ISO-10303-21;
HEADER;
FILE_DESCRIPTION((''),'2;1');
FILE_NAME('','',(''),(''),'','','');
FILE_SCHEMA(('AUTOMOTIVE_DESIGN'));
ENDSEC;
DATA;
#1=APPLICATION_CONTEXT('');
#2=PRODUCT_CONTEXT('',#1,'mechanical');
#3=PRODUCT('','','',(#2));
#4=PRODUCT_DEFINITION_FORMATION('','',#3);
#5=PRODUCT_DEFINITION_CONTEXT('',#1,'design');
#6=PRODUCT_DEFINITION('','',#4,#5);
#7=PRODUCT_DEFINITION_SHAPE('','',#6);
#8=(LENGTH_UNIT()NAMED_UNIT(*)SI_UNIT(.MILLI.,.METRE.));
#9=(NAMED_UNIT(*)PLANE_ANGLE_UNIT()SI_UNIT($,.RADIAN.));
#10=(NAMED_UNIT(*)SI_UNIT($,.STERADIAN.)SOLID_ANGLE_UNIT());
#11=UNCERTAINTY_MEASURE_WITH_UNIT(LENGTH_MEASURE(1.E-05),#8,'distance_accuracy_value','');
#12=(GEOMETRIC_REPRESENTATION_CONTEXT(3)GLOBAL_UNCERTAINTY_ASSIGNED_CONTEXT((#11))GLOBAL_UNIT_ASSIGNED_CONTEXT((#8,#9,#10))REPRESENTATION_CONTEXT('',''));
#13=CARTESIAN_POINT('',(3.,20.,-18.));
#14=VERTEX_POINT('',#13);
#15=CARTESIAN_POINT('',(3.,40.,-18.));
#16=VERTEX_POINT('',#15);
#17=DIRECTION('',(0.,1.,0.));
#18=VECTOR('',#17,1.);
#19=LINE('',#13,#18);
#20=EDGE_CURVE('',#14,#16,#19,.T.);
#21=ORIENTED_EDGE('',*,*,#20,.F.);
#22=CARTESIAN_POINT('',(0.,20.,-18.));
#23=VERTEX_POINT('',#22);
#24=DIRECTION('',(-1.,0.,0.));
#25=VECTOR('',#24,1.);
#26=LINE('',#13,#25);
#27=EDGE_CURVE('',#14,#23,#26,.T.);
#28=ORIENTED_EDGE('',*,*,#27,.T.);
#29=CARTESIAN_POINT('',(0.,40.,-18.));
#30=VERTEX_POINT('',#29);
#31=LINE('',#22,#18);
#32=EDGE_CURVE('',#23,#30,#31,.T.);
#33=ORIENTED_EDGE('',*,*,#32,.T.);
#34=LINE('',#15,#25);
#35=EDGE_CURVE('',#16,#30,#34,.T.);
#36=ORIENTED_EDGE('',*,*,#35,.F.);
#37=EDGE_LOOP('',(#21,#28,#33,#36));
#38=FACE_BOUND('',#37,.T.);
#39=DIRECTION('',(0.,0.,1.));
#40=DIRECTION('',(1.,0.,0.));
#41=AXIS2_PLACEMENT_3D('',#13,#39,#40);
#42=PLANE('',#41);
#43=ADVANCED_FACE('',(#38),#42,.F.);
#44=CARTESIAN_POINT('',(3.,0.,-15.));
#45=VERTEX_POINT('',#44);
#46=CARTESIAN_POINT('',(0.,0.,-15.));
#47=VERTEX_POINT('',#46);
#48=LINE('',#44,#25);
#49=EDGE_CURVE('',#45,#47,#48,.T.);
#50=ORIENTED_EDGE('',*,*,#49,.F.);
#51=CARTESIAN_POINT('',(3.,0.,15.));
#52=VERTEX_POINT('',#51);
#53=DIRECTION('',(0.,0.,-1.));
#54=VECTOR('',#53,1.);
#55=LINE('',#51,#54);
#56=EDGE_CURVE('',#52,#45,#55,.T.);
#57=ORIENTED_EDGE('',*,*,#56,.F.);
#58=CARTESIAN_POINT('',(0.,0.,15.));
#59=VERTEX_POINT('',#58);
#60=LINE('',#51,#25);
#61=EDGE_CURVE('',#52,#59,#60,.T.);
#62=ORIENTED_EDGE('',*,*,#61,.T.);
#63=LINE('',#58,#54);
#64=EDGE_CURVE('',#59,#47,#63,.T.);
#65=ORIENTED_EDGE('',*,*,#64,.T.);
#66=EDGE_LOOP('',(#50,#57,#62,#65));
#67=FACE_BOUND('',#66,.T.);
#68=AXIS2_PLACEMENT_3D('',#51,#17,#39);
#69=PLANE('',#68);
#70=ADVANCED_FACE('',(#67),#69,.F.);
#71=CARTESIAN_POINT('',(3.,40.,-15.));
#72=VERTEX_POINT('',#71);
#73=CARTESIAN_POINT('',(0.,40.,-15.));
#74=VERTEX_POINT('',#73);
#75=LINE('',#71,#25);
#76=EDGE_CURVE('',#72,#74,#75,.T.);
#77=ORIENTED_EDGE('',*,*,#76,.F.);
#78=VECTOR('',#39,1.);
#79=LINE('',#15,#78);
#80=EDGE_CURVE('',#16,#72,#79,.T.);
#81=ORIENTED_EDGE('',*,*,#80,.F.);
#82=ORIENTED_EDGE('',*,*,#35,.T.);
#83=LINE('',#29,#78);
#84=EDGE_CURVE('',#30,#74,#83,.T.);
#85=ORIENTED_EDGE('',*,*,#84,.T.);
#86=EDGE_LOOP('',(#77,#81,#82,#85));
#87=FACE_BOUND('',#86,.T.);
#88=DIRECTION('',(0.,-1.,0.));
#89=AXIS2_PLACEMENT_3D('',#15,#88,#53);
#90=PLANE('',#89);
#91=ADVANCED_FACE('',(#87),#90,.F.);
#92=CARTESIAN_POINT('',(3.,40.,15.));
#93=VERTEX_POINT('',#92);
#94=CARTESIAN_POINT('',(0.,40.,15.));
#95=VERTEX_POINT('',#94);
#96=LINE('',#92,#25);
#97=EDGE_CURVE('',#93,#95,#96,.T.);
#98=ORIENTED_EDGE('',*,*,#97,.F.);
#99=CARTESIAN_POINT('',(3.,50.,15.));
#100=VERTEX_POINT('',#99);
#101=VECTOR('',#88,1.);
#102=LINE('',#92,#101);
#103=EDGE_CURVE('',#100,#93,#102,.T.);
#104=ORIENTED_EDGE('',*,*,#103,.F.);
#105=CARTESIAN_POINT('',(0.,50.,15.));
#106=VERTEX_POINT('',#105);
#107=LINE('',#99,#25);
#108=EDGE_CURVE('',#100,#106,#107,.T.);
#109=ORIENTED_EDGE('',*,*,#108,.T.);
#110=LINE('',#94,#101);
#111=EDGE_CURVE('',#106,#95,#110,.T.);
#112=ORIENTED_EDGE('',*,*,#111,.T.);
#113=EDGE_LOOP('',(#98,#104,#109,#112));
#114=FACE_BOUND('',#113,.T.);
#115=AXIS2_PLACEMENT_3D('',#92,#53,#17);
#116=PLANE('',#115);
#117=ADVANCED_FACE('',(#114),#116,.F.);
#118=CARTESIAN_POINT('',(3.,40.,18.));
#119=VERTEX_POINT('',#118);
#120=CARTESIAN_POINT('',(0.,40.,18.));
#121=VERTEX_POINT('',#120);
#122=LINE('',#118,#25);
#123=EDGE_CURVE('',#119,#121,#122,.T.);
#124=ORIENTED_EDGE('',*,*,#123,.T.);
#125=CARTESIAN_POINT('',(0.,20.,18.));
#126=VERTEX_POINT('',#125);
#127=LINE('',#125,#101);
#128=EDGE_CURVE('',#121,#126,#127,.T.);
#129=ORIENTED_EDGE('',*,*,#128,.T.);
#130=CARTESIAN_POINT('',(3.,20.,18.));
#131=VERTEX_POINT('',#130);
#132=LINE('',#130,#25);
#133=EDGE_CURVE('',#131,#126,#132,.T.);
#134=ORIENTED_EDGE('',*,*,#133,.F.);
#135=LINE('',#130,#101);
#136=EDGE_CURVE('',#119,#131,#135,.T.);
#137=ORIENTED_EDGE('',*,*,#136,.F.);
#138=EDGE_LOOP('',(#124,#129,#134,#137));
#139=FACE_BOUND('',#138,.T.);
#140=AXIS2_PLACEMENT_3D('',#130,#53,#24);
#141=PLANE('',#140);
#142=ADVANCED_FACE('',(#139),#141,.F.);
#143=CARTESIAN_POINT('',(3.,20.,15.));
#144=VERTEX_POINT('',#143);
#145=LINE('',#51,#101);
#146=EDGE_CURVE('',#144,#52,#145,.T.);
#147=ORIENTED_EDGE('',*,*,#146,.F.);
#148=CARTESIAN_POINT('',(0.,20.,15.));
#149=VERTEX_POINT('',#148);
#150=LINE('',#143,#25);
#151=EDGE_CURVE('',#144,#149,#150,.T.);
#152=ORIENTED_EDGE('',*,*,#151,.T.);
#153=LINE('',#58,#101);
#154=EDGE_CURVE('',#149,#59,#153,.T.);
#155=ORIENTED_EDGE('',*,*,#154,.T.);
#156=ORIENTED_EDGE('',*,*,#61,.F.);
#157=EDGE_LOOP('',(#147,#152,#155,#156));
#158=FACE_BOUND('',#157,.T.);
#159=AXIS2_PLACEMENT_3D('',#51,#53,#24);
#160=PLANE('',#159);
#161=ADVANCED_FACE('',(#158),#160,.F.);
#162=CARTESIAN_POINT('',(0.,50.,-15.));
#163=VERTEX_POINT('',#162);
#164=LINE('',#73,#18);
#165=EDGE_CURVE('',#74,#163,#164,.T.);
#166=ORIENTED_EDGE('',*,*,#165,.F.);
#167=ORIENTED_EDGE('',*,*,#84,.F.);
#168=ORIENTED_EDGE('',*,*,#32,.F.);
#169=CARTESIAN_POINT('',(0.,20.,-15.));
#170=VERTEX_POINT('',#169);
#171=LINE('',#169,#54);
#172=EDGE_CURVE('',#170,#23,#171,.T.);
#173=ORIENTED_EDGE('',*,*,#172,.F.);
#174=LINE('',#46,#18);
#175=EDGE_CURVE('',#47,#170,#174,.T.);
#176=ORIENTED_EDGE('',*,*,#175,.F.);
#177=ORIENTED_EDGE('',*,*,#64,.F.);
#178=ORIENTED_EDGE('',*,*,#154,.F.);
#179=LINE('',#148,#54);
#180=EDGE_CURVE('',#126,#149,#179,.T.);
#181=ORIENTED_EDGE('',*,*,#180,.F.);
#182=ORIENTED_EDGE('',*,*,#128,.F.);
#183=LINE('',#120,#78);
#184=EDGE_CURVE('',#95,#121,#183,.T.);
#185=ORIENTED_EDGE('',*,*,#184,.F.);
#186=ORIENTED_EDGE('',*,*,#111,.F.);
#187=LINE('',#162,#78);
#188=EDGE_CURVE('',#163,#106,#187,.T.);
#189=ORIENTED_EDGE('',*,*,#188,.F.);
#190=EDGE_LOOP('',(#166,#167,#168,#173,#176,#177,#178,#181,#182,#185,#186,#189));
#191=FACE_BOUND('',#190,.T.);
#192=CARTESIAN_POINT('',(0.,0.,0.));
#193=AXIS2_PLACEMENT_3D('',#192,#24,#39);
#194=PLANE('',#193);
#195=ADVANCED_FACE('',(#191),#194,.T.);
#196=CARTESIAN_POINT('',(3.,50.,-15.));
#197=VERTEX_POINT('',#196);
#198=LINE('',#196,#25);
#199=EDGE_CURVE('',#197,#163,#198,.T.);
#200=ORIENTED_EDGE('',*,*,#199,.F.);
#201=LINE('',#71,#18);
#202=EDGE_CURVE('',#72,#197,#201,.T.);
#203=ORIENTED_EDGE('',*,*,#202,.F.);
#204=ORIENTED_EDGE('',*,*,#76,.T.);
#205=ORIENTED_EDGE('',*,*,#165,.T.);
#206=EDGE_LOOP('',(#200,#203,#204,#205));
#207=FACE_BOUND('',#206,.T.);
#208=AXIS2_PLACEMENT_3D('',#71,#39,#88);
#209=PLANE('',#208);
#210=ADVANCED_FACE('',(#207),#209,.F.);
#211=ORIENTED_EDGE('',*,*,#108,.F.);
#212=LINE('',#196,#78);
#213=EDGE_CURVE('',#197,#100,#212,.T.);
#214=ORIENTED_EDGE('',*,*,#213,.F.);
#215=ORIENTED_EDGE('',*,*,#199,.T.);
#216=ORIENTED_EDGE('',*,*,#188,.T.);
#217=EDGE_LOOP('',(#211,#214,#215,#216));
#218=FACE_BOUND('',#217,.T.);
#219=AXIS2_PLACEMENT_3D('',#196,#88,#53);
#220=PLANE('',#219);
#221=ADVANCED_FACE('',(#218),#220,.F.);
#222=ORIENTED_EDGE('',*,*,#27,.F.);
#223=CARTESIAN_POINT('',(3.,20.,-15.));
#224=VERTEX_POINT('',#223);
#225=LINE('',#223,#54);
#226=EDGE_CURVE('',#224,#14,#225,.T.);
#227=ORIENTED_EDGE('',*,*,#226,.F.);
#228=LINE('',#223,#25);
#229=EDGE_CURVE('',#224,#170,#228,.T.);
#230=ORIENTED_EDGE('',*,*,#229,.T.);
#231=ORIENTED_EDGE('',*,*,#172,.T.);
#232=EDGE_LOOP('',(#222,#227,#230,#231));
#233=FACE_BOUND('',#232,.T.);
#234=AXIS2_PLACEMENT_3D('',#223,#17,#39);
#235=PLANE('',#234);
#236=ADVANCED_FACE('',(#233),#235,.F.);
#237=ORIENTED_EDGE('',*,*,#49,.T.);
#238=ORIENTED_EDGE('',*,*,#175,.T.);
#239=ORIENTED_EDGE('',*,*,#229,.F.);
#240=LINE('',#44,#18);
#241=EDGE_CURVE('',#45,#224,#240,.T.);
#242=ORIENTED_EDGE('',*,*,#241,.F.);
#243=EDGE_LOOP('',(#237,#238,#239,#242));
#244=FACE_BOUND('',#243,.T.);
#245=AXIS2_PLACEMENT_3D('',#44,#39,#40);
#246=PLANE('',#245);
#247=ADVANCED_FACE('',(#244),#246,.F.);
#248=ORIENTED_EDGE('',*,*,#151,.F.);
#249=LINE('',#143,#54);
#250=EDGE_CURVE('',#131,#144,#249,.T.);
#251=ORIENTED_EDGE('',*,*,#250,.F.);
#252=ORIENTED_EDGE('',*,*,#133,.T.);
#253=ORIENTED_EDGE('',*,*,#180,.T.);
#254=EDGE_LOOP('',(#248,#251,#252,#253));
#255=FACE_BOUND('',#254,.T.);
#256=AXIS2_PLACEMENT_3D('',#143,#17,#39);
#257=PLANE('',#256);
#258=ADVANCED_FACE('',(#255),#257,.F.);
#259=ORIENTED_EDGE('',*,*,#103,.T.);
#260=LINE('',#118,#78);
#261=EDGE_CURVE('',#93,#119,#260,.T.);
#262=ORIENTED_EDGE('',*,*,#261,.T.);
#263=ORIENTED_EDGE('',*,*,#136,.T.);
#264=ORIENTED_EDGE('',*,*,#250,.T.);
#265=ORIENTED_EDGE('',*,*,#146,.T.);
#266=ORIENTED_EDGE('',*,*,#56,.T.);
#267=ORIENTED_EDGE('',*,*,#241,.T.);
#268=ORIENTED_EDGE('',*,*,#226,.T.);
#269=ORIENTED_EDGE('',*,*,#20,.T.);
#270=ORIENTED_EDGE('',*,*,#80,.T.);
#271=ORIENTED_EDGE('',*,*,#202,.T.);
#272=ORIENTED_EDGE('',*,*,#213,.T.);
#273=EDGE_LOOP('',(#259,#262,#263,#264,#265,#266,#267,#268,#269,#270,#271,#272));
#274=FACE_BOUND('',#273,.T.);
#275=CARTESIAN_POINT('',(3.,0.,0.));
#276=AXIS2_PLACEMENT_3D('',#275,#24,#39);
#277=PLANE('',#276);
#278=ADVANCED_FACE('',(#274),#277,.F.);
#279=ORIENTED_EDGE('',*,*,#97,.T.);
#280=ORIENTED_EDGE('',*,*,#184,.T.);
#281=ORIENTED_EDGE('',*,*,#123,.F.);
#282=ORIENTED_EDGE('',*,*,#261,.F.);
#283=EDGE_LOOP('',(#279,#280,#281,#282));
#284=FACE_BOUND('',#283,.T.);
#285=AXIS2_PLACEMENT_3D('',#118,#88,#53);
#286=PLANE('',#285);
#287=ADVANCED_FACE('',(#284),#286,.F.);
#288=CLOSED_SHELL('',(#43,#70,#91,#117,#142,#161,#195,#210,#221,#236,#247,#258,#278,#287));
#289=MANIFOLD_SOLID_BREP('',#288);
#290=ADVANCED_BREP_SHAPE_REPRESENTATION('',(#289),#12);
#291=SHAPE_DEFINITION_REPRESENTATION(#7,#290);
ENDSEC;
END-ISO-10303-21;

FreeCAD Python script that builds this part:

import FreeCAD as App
import Part
import Sketcher

V = App.Vector


def add_polygon(sketch, points):
    """Adds a closed chain of lines whose ends are joined by coincident constraints."""
    first, n = sketch.GeometryCount, len(points)
    for a, b in zip(points, points[1:] + points[:1]):
        sketch.addGeometry(Part.LineSegment(App.Vector(*a, 0), App.Vector(*b, 0)), False)
    for i in range(n):
        sketch.addConstraint(Sketcher.Constraint("Coincident", first + i, 2, first + (i + 1) % n, 1))

doc = App.newDocument("Part")
body = doc.addObject("PartDesign::Body", "Body")

# Sketch on YZ plane
sketch1 = body.newObject("Sketcher::SketchObject", "Sketch")
sketch1.AttachmentSupport = (doc.getObject("YZ_Plane"), [""])
sketch1.MapMode = "FlatFace"
add_polygon(sketch1, [(0, 15), (0, -15), (20, -15), (20, -18), (40, -18), (40, -15), (50, -15), (50, 15), (40, 15), (40, 18), (20, 18), (20, 15)])  # lines 0-11
sketch1.addConstraint([
    Sketcher.Constraint("Vertical", 0),
    Sketcher.Constraint("Horizontal", 1),
    Sketcher.Constraint("Vertical", 2),
    Sketcher.Constraint("Horizontal", 3),
    Sketcher.Constraint("Vertical", 4),
    Sketcher.Constraint("Horizontal", 5),
    Sketcher.Constraint("Vertical", 6),
    Sketcher.Constraint("Horizontal", 7),
    Sketcher.Constraint("Vertical", 8),
    Sketcher.Constraint("Horizontal", 9),
    Sketcher.Constraint("Vertical", 10),
    Sketcher.Constraint("Horizontal", 11),
    Sketcher.Constraint("Symmetric", 0, 2, 11, 2, -1, 1),
    Sketcher.Constraint("Symmetric", 4, 2, 7, 2, -1),
    Sketcher.Constraint("Symmetric", 2, 2, 9, 2, -1),
    Sketcher.Constraint("Horizontal", 1, 2, 4, 2),
    Sketcher.Constraint("Equal", 1, 3),
    Sketcher.Constraint("DistanceX", 1, 1, 1, 2, 20.0),
    Sketcher.Constraint("DistanceX", 5, 1, 5, 2, 10.0),
    Sketcher.Constraint("DistanceY", 0, 2, 0, 1, 30.0),
    Sketcher.Constraint("DistanceY", 2, 2, 2, 1, 3.0),
])
pad1 = body.newObject("PartDesign::Pad", "Pad")
pad1.Profile = sketch1
pad1.Length = 3

doc.recompute()
